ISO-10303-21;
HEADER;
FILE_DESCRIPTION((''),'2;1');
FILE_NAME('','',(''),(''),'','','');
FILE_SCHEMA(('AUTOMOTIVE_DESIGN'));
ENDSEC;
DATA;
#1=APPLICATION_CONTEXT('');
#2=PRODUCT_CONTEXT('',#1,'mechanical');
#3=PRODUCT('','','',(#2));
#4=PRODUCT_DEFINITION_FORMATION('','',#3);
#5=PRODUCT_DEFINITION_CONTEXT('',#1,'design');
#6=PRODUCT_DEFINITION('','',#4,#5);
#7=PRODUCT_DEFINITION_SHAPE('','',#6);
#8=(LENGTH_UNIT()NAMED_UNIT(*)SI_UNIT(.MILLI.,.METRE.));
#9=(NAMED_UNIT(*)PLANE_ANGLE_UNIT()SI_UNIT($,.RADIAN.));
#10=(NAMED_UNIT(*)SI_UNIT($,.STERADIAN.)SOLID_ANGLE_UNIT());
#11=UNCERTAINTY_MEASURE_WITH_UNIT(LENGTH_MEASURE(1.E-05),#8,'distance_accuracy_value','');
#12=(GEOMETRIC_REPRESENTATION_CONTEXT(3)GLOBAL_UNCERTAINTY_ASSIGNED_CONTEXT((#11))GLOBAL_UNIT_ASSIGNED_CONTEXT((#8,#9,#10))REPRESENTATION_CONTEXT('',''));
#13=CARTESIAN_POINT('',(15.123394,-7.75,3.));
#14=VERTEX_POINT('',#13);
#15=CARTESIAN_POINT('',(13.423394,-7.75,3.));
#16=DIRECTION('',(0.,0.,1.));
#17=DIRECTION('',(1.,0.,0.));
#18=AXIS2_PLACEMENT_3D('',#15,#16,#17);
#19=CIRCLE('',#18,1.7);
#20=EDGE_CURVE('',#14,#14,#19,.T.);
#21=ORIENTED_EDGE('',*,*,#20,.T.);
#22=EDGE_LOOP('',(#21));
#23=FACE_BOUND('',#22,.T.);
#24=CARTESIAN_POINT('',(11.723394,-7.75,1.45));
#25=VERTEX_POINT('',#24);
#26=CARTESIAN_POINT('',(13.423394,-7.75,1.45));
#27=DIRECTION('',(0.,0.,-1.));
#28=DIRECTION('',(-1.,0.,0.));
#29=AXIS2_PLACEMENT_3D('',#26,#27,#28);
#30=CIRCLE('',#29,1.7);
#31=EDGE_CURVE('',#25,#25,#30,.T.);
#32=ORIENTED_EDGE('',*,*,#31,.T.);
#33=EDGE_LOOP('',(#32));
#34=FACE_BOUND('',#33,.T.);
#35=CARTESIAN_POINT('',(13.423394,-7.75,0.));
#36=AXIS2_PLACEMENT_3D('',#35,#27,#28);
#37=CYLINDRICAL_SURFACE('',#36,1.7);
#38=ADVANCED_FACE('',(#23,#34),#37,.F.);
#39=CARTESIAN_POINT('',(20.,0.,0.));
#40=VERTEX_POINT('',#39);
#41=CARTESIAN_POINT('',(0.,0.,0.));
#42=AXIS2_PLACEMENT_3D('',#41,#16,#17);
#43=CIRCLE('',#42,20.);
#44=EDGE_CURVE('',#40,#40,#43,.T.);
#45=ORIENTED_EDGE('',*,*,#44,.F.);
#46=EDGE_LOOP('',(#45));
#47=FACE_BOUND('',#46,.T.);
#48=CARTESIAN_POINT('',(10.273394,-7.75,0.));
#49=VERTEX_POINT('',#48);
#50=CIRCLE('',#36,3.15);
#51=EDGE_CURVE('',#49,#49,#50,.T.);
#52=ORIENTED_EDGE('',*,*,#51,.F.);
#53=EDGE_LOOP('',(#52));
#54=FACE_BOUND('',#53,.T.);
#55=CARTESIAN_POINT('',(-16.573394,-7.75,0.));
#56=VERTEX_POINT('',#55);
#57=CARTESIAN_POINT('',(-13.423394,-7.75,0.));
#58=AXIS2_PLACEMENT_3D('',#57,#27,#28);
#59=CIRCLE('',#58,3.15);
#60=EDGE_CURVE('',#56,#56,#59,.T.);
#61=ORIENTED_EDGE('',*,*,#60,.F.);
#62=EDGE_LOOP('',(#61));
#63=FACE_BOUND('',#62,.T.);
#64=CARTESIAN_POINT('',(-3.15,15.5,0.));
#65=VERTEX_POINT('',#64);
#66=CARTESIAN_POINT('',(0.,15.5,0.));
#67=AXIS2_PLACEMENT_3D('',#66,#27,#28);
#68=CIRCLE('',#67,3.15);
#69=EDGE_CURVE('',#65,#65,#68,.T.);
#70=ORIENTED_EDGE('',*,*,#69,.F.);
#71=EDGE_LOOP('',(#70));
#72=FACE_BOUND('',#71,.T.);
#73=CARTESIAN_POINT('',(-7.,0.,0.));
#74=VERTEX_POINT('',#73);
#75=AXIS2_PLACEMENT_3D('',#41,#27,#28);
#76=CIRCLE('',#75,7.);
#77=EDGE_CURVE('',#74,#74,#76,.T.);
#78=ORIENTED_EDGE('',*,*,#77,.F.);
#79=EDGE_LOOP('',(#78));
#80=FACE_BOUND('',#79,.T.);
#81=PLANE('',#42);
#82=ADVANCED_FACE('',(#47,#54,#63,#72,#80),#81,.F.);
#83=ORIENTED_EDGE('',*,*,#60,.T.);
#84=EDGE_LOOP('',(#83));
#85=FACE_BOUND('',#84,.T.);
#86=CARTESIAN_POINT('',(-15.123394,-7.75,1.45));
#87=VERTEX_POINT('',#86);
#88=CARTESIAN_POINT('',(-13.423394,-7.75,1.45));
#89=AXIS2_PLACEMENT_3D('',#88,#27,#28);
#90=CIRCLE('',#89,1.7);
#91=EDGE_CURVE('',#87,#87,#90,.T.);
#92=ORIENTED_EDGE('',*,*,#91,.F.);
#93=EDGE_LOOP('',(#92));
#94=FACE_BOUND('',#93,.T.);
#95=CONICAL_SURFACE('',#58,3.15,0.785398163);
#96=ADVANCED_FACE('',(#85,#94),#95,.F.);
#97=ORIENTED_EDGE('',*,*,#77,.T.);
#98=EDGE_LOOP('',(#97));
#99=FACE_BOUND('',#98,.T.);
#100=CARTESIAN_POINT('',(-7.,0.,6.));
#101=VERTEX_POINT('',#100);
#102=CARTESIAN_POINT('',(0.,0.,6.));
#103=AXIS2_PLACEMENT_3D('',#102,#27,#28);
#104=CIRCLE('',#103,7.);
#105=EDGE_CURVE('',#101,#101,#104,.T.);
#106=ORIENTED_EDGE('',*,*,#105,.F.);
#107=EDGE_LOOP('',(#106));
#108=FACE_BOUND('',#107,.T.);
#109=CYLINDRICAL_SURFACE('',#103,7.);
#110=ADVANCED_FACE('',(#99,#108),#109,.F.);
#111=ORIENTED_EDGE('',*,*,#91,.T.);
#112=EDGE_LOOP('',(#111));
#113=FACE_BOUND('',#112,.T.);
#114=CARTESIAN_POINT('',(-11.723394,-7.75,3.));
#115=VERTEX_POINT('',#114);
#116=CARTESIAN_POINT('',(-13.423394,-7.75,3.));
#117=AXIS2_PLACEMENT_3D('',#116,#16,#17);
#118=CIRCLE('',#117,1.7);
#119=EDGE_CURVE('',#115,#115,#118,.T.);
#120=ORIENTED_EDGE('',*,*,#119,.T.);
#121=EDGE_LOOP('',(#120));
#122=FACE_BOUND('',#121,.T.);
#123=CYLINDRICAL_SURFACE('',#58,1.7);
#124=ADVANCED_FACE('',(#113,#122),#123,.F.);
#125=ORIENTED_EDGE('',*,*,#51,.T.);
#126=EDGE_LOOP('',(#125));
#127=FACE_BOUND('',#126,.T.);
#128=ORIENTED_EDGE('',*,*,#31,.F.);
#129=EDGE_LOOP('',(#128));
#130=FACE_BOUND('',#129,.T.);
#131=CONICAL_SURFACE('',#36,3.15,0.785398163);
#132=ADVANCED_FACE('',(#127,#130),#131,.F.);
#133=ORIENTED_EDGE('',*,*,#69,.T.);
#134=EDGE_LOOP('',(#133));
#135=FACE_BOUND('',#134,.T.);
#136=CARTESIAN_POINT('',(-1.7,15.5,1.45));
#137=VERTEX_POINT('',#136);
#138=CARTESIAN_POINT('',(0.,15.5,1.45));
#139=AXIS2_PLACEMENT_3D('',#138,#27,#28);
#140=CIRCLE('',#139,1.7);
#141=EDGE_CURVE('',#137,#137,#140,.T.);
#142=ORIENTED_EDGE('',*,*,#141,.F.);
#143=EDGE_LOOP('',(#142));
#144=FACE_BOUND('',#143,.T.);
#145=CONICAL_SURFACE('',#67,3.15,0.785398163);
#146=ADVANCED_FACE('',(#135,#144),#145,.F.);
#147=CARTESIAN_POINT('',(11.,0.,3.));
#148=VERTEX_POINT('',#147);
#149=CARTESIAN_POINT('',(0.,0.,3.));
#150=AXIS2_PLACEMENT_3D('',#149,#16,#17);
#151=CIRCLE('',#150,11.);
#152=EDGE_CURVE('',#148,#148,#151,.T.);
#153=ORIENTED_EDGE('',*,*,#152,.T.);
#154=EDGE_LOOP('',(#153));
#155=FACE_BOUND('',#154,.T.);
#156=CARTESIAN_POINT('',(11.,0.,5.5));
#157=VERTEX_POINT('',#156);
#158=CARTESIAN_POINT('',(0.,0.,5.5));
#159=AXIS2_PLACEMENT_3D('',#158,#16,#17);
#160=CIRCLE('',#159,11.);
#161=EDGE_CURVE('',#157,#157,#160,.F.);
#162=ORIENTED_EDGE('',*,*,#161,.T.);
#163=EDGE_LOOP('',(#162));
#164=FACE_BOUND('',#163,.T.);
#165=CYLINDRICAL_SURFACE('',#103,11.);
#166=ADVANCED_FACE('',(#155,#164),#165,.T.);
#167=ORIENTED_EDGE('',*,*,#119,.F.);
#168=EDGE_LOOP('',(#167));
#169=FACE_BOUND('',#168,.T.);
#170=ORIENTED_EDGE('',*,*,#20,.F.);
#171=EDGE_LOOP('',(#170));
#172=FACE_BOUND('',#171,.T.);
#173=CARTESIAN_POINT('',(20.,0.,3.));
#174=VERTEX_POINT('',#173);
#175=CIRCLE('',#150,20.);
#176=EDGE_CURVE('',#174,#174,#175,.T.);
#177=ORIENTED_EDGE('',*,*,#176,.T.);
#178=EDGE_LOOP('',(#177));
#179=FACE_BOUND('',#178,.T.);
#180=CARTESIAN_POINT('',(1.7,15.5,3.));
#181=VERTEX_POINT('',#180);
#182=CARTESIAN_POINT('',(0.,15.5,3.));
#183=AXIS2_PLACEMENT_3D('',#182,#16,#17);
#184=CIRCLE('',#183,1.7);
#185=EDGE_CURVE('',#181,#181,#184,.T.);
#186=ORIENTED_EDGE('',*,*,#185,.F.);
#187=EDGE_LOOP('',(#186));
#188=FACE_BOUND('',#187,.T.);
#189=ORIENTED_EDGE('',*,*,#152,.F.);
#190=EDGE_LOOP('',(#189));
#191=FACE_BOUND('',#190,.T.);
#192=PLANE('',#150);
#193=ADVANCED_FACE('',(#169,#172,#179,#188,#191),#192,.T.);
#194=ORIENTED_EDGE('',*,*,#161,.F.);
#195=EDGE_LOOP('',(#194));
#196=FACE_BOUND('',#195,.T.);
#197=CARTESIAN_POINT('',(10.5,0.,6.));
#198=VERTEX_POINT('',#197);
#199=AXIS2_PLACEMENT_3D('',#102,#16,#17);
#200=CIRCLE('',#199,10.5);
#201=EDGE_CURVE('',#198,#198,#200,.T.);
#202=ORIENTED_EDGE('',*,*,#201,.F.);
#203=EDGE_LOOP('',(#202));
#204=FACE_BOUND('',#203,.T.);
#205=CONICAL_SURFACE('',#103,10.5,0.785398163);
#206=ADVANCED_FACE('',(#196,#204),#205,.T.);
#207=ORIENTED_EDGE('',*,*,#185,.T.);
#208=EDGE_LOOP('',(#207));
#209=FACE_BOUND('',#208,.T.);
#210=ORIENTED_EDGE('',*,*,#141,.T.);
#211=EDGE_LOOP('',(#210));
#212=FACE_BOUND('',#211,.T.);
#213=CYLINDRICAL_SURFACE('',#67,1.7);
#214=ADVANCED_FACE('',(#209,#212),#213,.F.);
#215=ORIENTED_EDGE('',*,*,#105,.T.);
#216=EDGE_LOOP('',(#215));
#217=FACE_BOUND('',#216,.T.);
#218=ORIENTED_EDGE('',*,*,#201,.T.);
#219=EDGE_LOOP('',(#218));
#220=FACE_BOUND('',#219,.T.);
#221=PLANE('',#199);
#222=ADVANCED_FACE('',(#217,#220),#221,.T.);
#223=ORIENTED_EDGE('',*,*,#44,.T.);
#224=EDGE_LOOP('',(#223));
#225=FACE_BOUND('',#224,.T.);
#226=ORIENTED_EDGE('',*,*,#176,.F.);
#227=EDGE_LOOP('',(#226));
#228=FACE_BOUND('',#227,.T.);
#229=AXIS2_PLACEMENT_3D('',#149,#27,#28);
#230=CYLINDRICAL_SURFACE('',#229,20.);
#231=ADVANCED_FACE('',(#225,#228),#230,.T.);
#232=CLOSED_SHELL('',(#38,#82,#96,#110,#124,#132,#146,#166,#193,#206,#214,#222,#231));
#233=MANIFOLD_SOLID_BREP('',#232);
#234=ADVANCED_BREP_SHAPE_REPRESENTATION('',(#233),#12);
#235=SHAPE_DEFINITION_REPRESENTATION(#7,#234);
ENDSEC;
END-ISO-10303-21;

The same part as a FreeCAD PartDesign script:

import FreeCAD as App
import Part
import Sketcher


def edges_at(feature, points):
    """Names of the edges that pass closest to the given points."""
    edges = feature.Shape.Edges
    near = lambda p: min(range(len(edges)), key=lambda i: edges[i].distToShape(Part.Vertex(*p))[0])
    return sorted({f"Edge{near(p) + 1}" for p in points})

doc = App.newDocument("Part")
body = doc.addObject("PartDesign::Body", "Body")

sketch1 = body.newObject("Sketcher::SketchObject", "Sketch")
sketch1.AttachmentSupport = (doc.getObject("XY_Plane"), [""])
sketch1.MapMode = "FlatFace"
sketch1.addGeometry(Part.Circle(App.Vector(0, 0, 0), App.Vector(0, 0, 1), 20), False)
sketch1.addConstraint([
    Sketcher.Constraint("Coincident", 0, 3, -1, 1),
    Sketcher.Constraint("Diameter", 0, 40.0),
])
pad1 = body.newObject("PartDesign::Pad", "Pad")
pad1.Profile = sketch1
pad1.Length = 3

sketch2 = body.newObject("Sketcher::SketchObject", "Sketch001")
sketch2.AttachmentSupport = (doc.getObject("XY_Plane"), [""])
sketch2.MapMode = "FlatFace"
sketch2.AttachmentOffset = App.Placement(App.Vector(0, 0, 3), App.Rotation())
sketch2.addGeometry(Part.Circle(App.Vector(0, 0, 0), App.Vector(0, 0, 1), 11), False)
sketch2.addConstraint([
    Sketcher.Constraint("Coincident", 0, 3, -1, 1),
    Sketcher.Constraint("Diameter", 0, 22.0),
])
pad2 = body.newObject("PartDesign::Pad", "Pad001")
pad2.Profile = sketch2
pad2.Length = 3
doc.recompute()

chamfer = body.newObject("PartDesign::Chamfer", "Chamfer")
chamfer.Base = (pad2, edges_at(pad2, [(-11, 0, 6)]))
chamfer.Size = 0.5

sketch3 = body.newObject("Sketcher::SketchObject", "Sketch002")
sketch3.AttachmentSupport = (doc.getObject("XY_Plane"), [""])
sketch3.MapMode = "FlatFace"
sketch3.addGeometry(Part.Circle(App.Vector(0, 0, 0), App.Vector(0, 0, 1), 7), False)
sketch3.addConstraint([
    Sketcher.Constraint("Coincident", 0, 3, -1, 1),
    Sketcher.Constraint("Diameter", 0, 14.0),
])
pocket1 = body.newObject("PartDesign::Pocket", "Pocket")
pocket1.Profile = sketch3
pocket1.Type = "ThroughAll"
pocket1.Reversed = True

sketch4 = body.newObject("Sketcher::SketchObject", "Sketch003")
sketch4.AttachmentSupport = (doc.getObject("XY_Plane"), [""])
sketch4.MapMode = "FlatFace"
sketch4.addGeometry(Part.Circle(App.Vector(0, 15.5, 0), App.Vector(0, 0, 1), 1.7), False)
sketch4.addConstraint([
    Sketcher.Constraint("PointOnObject", 0, 3, -2),
    Sketcher.Constraint("Diameter", 0, 3.4),
    Sketcher.Constraint("DistanceY", -1, 1, 0, 3, 15.5),
])
doc.recompute()
hole = body.newObject("PartDesign::Hole", "Hole")
hole.Profile = sketch4
hole.ThreadType = "None"
hole.Diameter = 3.4
hole.DepthType = "ThroughAll"
hole.HoleCutType = "Countersink"
hole.HoleCutDiameter = 6.3
hole.HoleCutCountersinkAngle = 90
hole.Reversed = True
doc.recompute()

polarpattern = body.newObject("PartDesign::PolarPattern", "PolarPattern")
polarpattern.Originals = [hole]
polarpattern.Axis = (doc.getObject("Z_Axis"), [""])
polarpattern.Angle = 360
polarpattern.Occurrences = 3
body.Tip = polarpattern

doc.recompute()
